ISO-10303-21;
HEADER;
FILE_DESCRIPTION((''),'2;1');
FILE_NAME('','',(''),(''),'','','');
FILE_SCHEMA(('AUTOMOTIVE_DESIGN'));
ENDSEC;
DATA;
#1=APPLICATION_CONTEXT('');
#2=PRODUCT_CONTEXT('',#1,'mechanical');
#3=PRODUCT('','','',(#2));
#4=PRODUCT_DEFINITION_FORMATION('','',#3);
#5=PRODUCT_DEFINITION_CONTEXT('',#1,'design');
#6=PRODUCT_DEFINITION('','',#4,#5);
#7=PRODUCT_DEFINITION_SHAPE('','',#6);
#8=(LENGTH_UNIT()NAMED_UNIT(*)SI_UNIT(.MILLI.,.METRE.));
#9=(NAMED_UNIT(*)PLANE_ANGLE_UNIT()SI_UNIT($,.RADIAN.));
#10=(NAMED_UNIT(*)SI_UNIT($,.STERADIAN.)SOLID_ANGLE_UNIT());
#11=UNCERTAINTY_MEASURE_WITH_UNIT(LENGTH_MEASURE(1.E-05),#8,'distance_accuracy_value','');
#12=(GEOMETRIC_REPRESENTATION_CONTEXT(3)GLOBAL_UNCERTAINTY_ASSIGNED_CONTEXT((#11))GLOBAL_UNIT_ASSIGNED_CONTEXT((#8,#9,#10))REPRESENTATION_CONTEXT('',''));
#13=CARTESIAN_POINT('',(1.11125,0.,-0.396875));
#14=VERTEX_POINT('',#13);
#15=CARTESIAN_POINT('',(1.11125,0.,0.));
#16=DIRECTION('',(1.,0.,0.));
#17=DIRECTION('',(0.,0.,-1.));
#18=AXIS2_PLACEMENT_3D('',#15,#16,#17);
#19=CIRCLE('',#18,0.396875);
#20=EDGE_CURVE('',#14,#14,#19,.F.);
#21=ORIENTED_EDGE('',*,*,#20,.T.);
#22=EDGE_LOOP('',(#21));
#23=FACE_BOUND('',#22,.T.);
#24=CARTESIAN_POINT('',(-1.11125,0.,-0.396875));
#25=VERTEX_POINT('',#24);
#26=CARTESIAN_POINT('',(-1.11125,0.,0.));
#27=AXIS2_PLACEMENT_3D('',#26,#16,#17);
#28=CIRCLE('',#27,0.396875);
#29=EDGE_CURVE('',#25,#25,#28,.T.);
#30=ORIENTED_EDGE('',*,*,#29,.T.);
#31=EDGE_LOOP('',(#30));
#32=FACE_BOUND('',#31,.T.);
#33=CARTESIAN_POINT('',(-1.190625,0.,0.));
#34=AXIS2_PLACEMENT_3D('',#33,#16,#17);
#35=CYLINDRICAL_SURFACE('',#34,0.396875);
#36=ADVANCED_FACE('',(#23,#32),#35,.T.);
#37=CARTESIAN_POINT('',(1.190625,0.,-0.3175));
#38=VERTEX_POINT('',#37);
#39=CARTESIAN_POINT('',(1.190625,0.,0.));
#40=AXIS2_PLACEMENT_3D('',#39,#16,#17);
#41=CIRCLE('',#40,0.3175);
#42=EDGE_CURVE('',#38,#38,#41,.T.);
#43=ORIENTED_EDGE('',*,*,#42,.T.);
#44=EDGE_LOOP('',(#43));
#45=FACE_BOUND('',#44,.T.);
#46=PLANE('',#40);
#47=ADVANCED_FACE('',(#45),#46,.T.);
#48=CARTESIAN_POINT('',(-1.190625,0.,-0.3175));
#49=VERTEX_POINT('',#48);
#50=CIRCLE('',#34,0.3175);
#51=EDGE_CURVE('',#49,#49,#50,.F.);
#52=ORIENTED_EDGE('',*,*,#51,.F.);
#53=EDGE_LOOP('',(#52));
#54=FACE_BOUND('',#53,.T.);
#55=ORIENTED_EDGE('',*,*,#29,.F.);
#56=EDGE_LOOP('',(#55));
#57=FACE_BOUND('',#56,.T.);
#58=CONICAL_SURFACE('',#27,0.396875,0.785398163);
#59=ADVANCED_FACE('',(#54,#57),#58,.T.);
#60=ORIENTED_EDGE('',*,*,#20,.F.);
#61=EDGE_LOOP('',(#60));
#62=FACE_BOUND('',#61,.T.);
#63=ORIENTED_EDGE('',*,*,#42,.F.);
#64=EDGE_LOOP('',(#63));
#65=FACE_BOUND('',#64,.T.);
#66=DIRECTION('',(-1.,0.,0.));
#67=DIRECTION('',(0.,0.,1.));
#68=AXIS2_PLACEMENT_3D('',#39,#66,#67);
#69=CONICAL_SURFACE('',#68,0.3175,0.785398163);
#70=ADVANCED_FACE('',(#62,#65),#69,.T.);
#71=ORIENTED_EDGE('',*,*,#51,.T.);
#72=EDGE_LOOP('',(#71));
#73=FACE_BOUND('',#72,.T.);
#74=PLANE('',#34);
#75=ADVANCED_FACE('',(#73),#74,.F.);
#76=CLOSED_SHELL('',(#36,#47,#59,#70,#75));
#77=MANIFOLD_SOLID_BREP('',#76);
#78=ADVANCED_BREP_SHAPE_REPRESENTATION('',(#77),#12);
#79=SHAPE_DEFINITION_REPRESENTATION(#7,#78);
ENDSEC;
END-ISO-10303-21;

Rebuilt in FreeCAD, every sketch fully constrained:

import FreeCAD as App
import Part
import Sketcher
Q = App.Units.Quantity


def edges_at(feature, points):
    """Names of the edges that pass closest to the given points."""
    edges = feature.Shape.Edges
    near = lambda p: min(range(len(edges)), key=lambda i: edges[i].distToShape(Part.Vertex(*p))[0])
    return sorted({f"Edge{near(p) + 1}" for p in points})

doc = App.newDocument("Part")
body = doc.addObject("PartDesign::Body", "Body")

# Sketch on YZ plane
sketch1 = doc.addObject("Sketcher::SketchObject", "Sketch")
body.addObject(sketch1)
sketch1.AttachmentSupport = (doc.YZ_Plane, [""])
sketch1.MapMode = "FlatFace"
sketch1.addGeometry(Part.Circle(App.Vector(0, 0, 0), App.Vector(0, 0, 1), 0.396875), False)
sketch1.addConstraint(Sketcher.Constraint("Coincident", 0, 3, -1, 1))
sketch1.addConstraint(Sketcher.Constraint("Diameter", 0, Q("0.03125 in")))
pad1 = doc.addObject("PartDesign::Pad", "Pad")
body.addObject(pad1)
pad1.Profile = sketch1
pad1.Type = "TwoLengths"
pad1.Length = Q("0.046875 in")
pad1.Length2 = Q("0.046875 in")
doc.recompute()

chamfer = doc.addObject("PartDesign::Chamfer", "Chamfer")
body.addObject(chamfer)
chamfer.Base = (pad1, edges_at(pad1, [(-1.191, 0, 0.397), (1.191, 0, 0.397)]))
chamfer.Size = 0.079375

doc.recompute()
